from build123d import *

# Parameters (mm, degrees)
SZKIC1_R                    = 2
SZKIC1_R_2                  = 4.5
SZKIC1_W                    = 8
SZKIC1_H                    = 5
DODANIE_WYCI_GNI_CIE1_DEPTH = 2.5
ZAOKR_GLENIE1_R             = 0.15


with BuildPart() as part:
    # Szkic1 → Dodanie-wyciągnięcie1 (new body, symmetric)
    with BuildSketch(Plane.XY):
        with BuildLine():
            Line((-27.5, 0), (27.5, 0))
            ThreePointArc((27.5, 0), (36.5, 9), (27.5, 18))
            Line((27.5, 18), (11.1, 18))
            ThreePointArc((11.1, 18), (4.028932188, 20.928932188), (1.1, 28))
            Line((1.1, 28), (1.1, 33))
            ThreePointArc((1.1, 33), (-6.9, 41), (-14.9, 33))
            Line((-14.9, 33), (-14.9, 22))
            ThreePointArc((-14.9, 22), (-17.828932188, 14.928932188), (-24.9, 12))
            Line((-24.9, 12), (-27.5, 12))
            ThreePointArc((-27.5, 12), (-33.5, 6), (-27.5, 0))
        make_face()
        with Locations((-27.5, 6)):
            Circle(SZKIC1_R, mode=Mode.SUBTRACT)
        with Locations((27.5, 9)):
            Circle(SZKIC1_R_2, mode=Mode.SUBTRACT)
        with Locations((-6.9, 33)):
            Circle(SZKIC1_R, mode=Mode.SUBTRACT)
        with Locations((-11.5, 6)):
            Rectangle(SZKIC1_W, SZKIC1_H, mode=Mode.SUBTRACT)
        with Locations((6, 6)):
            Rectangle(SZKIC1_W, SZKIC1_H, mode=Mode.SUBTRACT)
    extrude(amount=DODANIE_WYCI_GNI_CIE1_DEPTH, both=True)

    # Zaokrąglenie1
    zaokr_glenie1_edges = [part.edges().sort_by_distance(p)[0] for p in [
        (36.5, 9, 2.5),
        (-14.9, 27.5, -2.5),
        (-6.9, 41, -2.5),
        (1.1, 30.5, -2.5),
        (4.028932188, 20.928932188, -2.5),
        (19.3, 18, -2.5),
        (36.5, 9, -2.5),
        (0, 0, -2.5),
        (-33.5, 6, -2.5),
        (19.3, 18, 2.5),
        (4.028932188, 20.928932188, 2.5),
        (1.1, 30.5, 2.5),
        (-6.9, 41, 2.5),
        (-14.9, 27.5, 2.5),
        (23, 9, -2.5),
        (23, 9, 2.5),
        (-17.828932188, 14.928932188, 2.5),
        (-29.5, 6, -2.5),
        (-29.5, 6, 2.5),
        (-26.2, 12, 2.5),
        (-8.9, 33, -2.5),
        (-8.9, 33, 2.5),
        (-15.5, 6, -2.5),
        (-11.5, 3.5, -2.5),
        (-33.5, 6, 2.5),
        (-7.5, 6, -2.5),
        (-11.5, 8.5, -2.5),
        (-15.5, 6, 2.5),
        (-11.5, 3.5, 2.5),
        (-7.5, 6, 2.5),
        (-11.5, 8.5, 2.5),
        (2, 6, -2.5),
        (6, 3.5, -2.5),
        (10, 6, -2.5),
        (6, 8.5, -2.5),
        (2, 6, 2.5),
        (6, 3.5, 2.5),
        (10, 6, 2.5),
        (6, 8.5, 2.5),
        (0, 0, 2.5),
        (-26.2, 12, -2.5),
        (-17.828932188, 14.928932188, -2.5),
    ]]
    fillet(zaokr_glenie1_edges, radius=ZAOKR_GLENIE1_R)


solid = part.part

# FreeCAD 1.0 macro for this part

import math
import FreeCAD as App
import Part
import Sketcher
from FreeCAD import Vector
Q = App.Units.Quantity


def edges_at(feature, points):
    """Names of the edges that pass closest to the given points."""
    edges = feature.Shape.Edges
    near = lambda p: min(range(len(edges)), key=lambda i: edges[i].distToShape(Part.Vertex(*p))[0])
    return sorted({f"Edge{near(p) + 1}" for p in points})


def add_polygon(sketch, points):
    """Adds a closed chain of lines whose ends are joined by coincident constraints."""
    first, n = sketch.GeometryCount, len(points)
    for a, b in zip(points, points[1:] + points[:1]):
        sketch.addGeometry(Part.LineSegment(App.Vector(*a, 0), App.Vector(*b, 0)), False)
    for i in range(n):
        sketch.addConstraint(Sketcher.Constraint("Coincident", first + i, 2, first + (i + 1) % n, 1))

doc = App.newDocument("Part")
body = doc.addObject("PartDesign::Body", "Body")

# Sketch on XY plane
sketch1 = body.newObject("Sketcher::SketchObject", "Sketch")
sketch1.AttachmentSupport = (doc.getObject("XY_Plane"), [""])
sketch1.MapMode = "FlatFace"
sketch1.addGeometry(Part.LineSegment(Vector(-27.5, 0, 0), Vector(27.5, 0, 0)), False)  # 0
sketch1.addGeometry(Part.ArcOfCircle(Part.Circle(Vector(27.5, 9, 0), Vector(0, 0, 1), 9), math.radians(-90), math.radians(90)), False)  # 1
sketch1.addGeometry(Part.LineSegment(Vector(27.5, 18, 0), Vector(11.1, 18, 0)), False)  # 2
sketch1.addGeometry(Part.ArcOfCircle(Part.Circle(Vector(11.1, 28, 0), Vector(0, 0, 1), 10), math.radians(180), math.radians(270)), False)  # 3
sketch1.addGeometry(Part.LineSegment(Vector(1.1, 28, 0), Vector(1.1, 33, 0)), False)  # 4
sketch1.addGeometry(Part.ArcOfCircle(Part.Circle(Vector(-6.9, 33, 0), Vector(0, 0, 1), 8), math.radians(0), math.radians(180)), False)  # 5
sketch1.addGeometry(Part.LineSegment(Vector(-14.9, 33, 0), Vector(-14.9, 22, 0)), False)  # 6
sketch1.addGeometry(Part.ArcOfCircle(Part.Circle(Vector(-24.9, 22, 0), Vector(0, 0, 1), 10), math.radians(-90), math.radians(0)), False)  # 7
sketch1.addGeometry(Part.LineSegment(Vector(-24.9, 12, 0), Vector(-27.5, 12, 0)), False)  # 8
sketch1.addGeometry(Part.ArcOfCircle(Part.Circle(Vector(-27.5, 6, 0), Vector(0, 0, 1), 6), math.radians(90), math.radians(270)), False)  # 9
sketch1.addGeometry(Part.Circle(Vector(-27.5, 6, 0), Vector(0, 0, 1), 2), False)  # 10
add_polygon(sketch1, [(-7.5, 3.5), (-15.5, 3.5), (-15.5, 8.5), (-7.5, 8.5)])  # lines 11-14
add_polygon(sketch1, [(10, 3.5), (2, 3.5), (2, 8.5), (10, 8.5)])  # lines 15-18
sketch1.addGeometry(Part.Circle(Vector(27.5, 9, 0), Vector(0, 0, 1), 4.5), False)  # 19
sketch1.addGeometry(Part.Circle(Vector(-6.9, 33, 0), Vector(0, 0, 1), 2), False)  # 20
sketch1.addConstraint(Sketcher.Constraint("Tangent", 0, 2, 1, 1))
sketch1.addConstraint(Sketcher.Constraint("Tangent", 1, 2, 2, 1))
sketch1.addConstraint(Sketcher.Constraint("Tangent", 2, 2, 3, 2))
sketch1.addConstraint(Sketcher.Constraint("Tangent", 3, 1, 4, 1))
sketch1.addConstraint(Sketcher.Constraint("Tangent", 4, 2, 5, 1))
sketch1.addConstraint(Sketcher.Constraint("Tangent", 5, 2, 6, 1))
sketch1.addConstraint(Sketcher.Constraint("Tangent", 6, 2, 7, 2))
sketch1.addConstraint(Sketcher.Constraint("Tangent", 7, 1, 8, 1))
sketch1.addConstraint(Sketcher.Constraint("Tangent", 8, 2, 9, 1))
sketch1.addConstraint(Sketcher.Constraint("Tangent", 9, 2, 0, 1))
sketch1.addConstraint(Sketcher.Constraint("Horizontal", 0))
sketch1.addConstraint(Sketcher.Constraint("Horizontal", 2))
sketch1.addConstraint(Sketcher.Constraint("Vertical", 4))
sketch1.addConstraint(Sketcher.Constraint("Vertical", 6))
sketch1.addConstraint(Sketcher.Constraint("Horizontal", 8))
sketch1.addConstraint(Sketcher.Constraint("Horizontal", 11))
sketch1.addConstraint(Sketcher.Constraint("Vertical", 12))
sketch1.addConstraint(Sketcher.Constraint("Horizontal", 13))
sketch1.addConstraint(Sketcher.Constraint("Vertical", 14))
sketch1.addConstraint(Sketcher.Constraint("Horizontal", 15))
sketch1.addConstraint(Sketcher.Constraint("Vertical", 16))
sketch1.addConstraint(Sketcher.Constraint("Horizontal", 17))
sketch1.addConstraint(Sketcher.Constraint("Vertical", 18))
sketch1.addConstraint(Sketcher.Constraint("Coincident", 10, 3, 9, 3))
sketch1.addConstraint(Sketcher.Constraint("Coincident", 19, 3, 1, 3))
sketch1.addConstraint(Sketcher.Constraint("Coincident", 20, 3, 5, 3))
sketch1.addConstraint(Sketcher.Constraint("Equal", 3, 7))
sketch1.addConstraint(Sketcher.Constraint("Equal", 10, 20))
sketch1.addConstraint(Sketcher.Constraint("Symmetric", 0, 2, 9, 2, -1, 1))
sketch1.addConstraint(Sketcher.Constraint("Horizontal", 14, 2, 15, 2))
sketch1.addConstraint(Sketcher.Constraint("Horizontal", 13, 2, 16, 2))
sketch1.addConstraint(Sketcher.Constraint("Equal", 13, 15))
sketch1.addConstraint(Sketcher.Constraint("Equal", 4, 12))
sketch1.addConstraint(Sketcher.Constraint("Diameter", 10, Q("4 mm")))
sketch1.addConstraint(Sketcher.Constraint("Diameter", 19, Q("9 mm")))
sketch1.addConstraint(Sketcher.Constraint("Radius", 1, Q("9 mm")))
sketch1.addConstraint(Sketcher.Constraint("Radius", 3, Q("10 mm")))
sketch1.addConstraint(Sketcher.Constraint("Radius", 5, Q("8 mm")))
sketch1.addConstraint(Sketcher.Constraint("Radius", 9, Q("6 mm")))
sketch1.addConstraint(Sketcher.Constraint("DistanceX", 0, 1, 0, 2, Q("55 mm")))
sketch1.addConstraint(Sketcher.Constraint("DistanceX", 11, 2, 11, 1, Q("8 mm")))
sketch1.addConstraint(Sketcher.Constraint("DistanceY", 4, 1, 4, 2, Q("5 mm")))
sketch1.addConstraint(Sketcher.Constraint("DistanceX", 2, 2, 2, 1, Q("16.4 mm")))
sketch1.addConstraint(Sketcher.Constraint("DistanceX", -1, 1, 15, 2, Q("2 mm")))
sketch1.addConstraint(Sketcher.Constraint("DistanceX", 9, 3, 11, 2, Q("12 mm")))
sketch1.addConstraint(Sketcher.Constraint("DistanceY", -1, 1, 11, 2, Q("3.5 mm")))
pad1 = body.newObject("PartDesign::Pad", "Pad")
pad1.Profile = sketch1
pad1.Length = 5
pad1.Midplane = True
doc.recompute()

fillet = body.newObject("PartDesign::Fillet", "Fillet")
fillet.Base = (pad1, edges_at(pad1, [
    (36.5, 9, 2.5),
    (-14.9, 27.5, -2.5),
    (-6.9, 41, -2.5),
    (1.1, 30.5, -2.5),
    (4.029, 20.929, -2.5),
    (19.3, 18, -2.5),
    (36.5, 9, -2.5),
    (0, 0, -2.5),
    (-33.5, 6, -2.5),
    (19.3, 18, 2.5),
    (4.029, 20.929, 2.5),
    (1.1, 30.5, 2.5),
    (-6.9, 41, 2.5),
    (-14.9, 27.5, 2.5),
    (23, 9, -2.5),
    (23, 9, 2.5),
    (-17.829, 14.929, 2.5),
    (-29.5, 6, -2.5),
    (-29.5, 6, 2.5),
    (-26.2, 12, 2.5),
    (-8.9, 33, -2.5),
    (-8.9, 33, 2.5),
    (-15.5, 6, -2.5),
    (-11.5, 3.5, -2.5),
    (-33.5, 6, 2.5),
    (-7.5, 6, -2.5),
    (-11.5, 8.5, -2.5),
    (-15.5, 6, 2.5),
    (-11.5, 3.5, 2.5),
    (-7.5, 6, 2.5),
    (-11.5, 8.5, 2.5),
    (2, 6, -2.5),
    (6, 3.5, -2.5),
    (10, 6, -2.5),
    (6, 8.5, -2.5),
    (2, 6, 2.5),
    (6, 3.5, 2.5),
    (10, 6, 2.5),
    (6, 8.5, 2.5),
    (0, 0, 2.5),
    (-26.2, 12, -2.5),
    (-17.829, 14.929, -2.5),
]))
fillet.Radius = 0.15

doc.recompute()
